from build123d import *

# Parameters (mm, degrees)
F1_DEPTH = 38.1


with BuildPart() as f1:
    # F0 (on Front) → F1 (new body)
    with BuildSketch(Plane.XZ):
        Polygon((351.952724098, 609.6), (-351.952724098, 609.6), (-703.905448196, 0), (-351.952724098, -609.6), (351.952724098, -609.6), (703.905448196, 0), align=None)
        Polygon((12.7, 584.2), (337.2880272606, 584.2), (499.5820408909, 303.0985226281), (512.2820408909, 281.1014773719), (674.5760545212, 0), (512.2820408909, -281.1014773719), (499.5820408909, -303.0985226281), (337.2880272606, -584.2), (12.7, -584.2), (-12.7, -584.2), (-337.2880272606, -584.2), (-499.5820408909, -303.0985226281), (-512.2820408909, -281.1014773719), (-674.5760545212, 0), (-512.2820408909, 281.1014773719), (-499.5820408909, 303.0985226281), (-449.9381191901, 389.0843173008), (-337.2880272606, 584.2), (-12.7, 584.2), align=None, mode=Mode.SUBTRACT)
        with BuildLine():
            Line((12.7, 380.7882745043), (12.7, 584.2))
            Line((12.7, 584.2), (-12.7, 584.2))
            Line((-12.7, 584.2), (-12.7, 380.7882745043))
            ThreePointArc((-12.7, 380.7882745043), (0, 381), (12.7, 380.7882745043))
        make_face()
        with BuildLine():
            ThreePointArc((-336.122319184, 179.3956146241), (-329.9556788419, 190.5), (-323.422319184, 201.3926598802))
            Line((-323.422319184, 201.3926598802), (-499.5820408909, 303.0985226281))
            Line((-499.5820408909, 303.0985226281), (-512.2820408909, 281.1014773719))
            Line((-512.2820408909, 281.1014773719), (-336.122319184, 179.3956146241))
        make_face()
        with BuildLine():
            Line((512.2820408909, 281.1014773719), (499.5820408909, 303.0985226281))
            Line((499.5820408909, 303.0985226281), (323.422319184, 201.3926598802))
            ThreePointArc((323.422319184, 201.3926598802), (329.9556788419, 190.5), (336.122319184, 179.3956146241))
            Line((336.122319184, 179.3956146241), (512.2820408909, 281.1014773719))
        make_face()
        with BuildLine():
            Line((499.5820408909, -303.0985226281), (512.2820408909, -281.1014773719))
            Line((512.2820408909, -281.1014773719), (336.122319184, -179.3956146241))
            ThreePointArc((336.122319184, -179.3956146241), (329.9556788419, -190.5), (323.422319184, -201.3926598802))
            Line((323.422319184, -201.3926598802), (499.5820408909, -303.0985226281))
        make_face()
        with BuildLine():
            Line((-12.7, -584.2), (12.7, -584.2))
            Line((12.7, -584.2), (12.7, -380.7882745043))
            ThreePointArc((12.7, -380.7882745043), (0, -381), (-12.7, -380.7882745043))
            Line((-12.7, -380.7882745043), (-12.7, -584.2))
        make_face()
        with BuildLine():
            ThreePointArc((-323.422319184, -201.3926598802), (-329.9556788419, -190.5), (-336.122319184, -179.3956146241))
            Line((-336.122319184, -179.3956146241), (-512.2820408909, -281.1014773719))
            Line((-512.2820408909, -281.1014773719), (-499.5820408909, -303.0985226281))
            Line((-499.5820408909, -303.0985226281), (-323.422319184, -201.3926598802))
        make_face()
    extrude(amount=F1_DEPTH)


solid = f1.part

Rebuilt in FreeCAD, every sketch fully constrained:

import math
import FreeCAD as App
import Part
import Sketcher
Q = App.Units.Quantity


def add_polygon(sketch, points):
    """Adds a closed chain of lines whose ends are joined by coincident constraints."""
    first, n = sketch.GeometryCount, len(points)
    for a, b in zip(points, points[1:] + points[:1]):
        sketch.addGeometry(Part.LineSegment(App.Vector(*a, 0), App.Vector(*b, 0)), False)
    for i in range(n):
        sketch.addConstraint(Sketcher.Constraint("Coincident", first + i, 2, first + (i + 1) % n, 1))

doc = App.newDocument("Part")
body = doc.addObject("PartDesign::Body", "Body")

# Sketch on XZ plane
sketch1 = doc.addObject("Sketcher::SketchObject", "Sketch")
body.addObject(sketch1)
sketch1.AttachmentSupport = (doc.XZ_Plane, [""])
sketch1.MapMode = "FlatFace"
add_polygon(sketch1, [(352, 610), (-352, 610), (-704, 0), (-352, -610), (352, -610), (704, 0)])  # lines 0-5
sketch1.addGeometry(Part.LineSegment(App.Vector(-337, 584, 0), App.Vector(-13, 584, 0)), False)  # 6
sketch1.addGeometry(Part.LineSegment(App.Vector(-13, 584, 0), App.Vector(-13, 381, 0)), False)  # 7
sketch1.addGeometry(Part.ArcOfCircle(Part.Circle(App.Vector(0, 0, 0), App.Vector(0, 0, 1), 381), math.radians(88.09), math.radians(91.91)), False)  # 8
sketch1.addGeometry(Part.LineSegment(App.Vector(13, 381, 0), App.Vector(13, 584, 0)), False)  # 9
sketch1.addGeometry(Part.LineSegment(App.Vector(13, 584, 0), App.Vector(337, 584, 0)), False)  # 10
sketch1.addGeometry(Part.LineSegment(App.Vector(337, 584, 0), App.Vector(500, 303, 0)), False)  # 11
sketch1.addGeometry(Part.LineSegment(App.Vector(500, 303, 0), App.Vector(323, 201, 0)), False)  # 12
sketch1.addGeometry(Part.ArcOfCircle(Part.Circle(App.Vector(0, 0, 0), App.Vector(0, 0, 1), 381), math.radians(28.09), math.radians(31.91)), False)  # 13
sketch1.addGeometry(Part.LineSegment(App.Vector(336, 179, 0), App.Vector(512, 281, 0)), False)  # 14
sketch1.addGeometry(Part.LineSegment(App.Vector(512, 281, 0), App.Vector(675, 0, 0)), False)  # 15
sketch1.addGeometry(Part.LineSegment(App.Vector(675, 0, 0), App.Vector(512, -281, 0)), False)  # 16
sketch1.addGeometry(Part.LineSegment(App.Vector(512, -281, 0), App.Vector(336, -179, 0)), False)  # 17
sketch1.addGeometry(Part.ArcOfCircle(Part.Circle(App.Vector(0, 0, 0), App.Vector(0, 0, 1), 381), math.radians(-31.91), math.radians(-28.09)), False)  # 18
sketch1.addGeometry(Part.LineSegment(App.Vector(323, -201, 0), App.Vector(500, -303, 0)), False)  # 19
sketch1.addGeometry(Part.LineSegment(App.Vector(500, -303, 0), App.Vector(337, -584, 0)), False)  # 20
sketch1.addGeometry(Part.LineSegment(App.Vector(337, -584, 0), App.Vector(13, -584, 0)), False)  # 21
sketch1.addGeometry(Part.LineSegment(App.Vector(13, -584, 0), App.Vector(13, -381, 0)), False)  # 22
sketch1.addGeometry(Part.ArcOfCircle(Part.Circle(App.Vector(0, 0, 0), App.Vector(0, 0, 1), 381), math.radians(-91.91), math.radians(-88.09)), False)  # 23
sketch1.addGeometry(Part.LineSegment(App.Vector(-13, -381, 0), App.Vector(-13, -584, 0)), False)  # 24
sketch1.addGeometry(Part.LineSegment(App.Vector(-13, -584, 0), App.Vector(-337, -584, 0)), False)  # 25
sketch1.addGeometry(Part.LineSegment(App.Vector(-337, -584, 0), App.Vector(-500, -303, 0)), False)  # 26
sketch1.addGeometry(Part.LineSegment(App.Vector(-500, -303, 0), App.Vector(-323, -201, 0)), False)  # 27
sketch1.addGeometry(Part.ArcOfCircle(Part.Circle(App.Vector(0, 0, 0), App.Vector(0, 0, 1), 381), math.radians(-151.91), math.radians(-148.09)), False)  # 28
sketch1.addGeometry(Part.LineSegment(App.Vector(-336, -179, 0), App.Vector(-512, -281, 0)), False)  # 29
sketch1.addGeometry(Part.LineSegment(App.Vector(-512, -281, 0), App.Vector(-675, 0, 0)), False)  # 30
sketch1.addGeometry(Part.LineSegment(App.Vector(-675, 0, 0), App.Vector(-512, 281, 0)), False)  # 31
sketch1.addGeometry(Part.LineSegment(App.Vector(-512, 281, 0), App.Vector(-336, 179, 0)), False)  # 32
sketch1.addGeometry(Part.ArcOfCircle(Part.Circle(App.Vector(0, 0, 0), App.Vector(0, 0, 1), 381), math.radians(148.09), math.radians(151.91)), False)  # 33
sketch1.addGeometry(Part.LineSegment(App.Vector(-323, 201, 0), App.Vector(-500, 303, 0)), False)  # 34
sketch1.addGeometry(Part.LineSegment(App.Vector(-500, 303, 0), App.Vector(-337, 584, 0)), False)  # 35
sketch1.addConstraint([
    Sketcher.Constraint("Coincident", 6, 2, 7, 1),
    Sketcher.Constraint("Coincident", 7, 2, 8, 2),
    Sketcher.Constraint("Coincident", 8, 1, 9, 1),
    Sketcher.Constraint("Coincident", 9, 2, 10, 1),
    Sketcher.Constraint("Coincident", 10, 2, 11, 1),
    Sketcher.Constraint("Coincident", 11, 2, 12, 1),
    Sketcher.Constraint("Coincident", 12, 2, 13, 2),
    Sketcher.Constraint("Coincident", 13, 1, 14, 1),
    Sketcher.Constraint("Coincident", 14, 2, 15, 1),
    Sketcher.Constraint("Coincident", 15, 2, 16, 1),
    Sketcher.Constraint("Coincident", 16, 2, 17, 1),
    Sketcher.Constraint("Coincident", 17, 2, 18, 2),
    Sketcher.Constraint("Coincident", 18, 1, 19, 1),
    Sketcher.Constraint("Coincident", 19, 2, 20, 1),
    Sketcher.Constraint("Coincident", 20, 2, 21, 1),
    Sketcher.Constraint("Coincident", 21, 2, 22, 1),
    Sketcher.Constraint("Coincident", 22, 2, 23, 2),
    Sketcher.Constraint("Coincident", 23, 1, 24, 1),
    Sketcher.Constraint("Coincident", 24, 2, 25, 1),
    Sketcher.Constraint("Coincident", 25, 2, 26, 1),
    Sketcher.Constraint("Coincident", 26, 2, 27, 1),
    Sketcher.Constraint("Coincident", 27, 2, 28, 2),
    Sketcher.Constraint("Coincident", 28, 1, 29, 1),
    Sketcher.Constraint("Coincident", 29, 2, 30, 1),
    Sketcher.Constraint("Coincident", 30, 2, 31, 1),
    Sketcher.Constraint("Coincident", 31, 2, 32, 1),
    Sketcher.Constraint("Coincident", 32, 2, 33, 2),
    Sketcher.Constraint("Coincident", 33, 1, 34, 1),
    Sketcher.Constraint("Coincident", 34, 2, 35, 1),
    Sketcher.Constraint("Coincident", 35, 2, 6, 1),
    Sketcher.Constraint("Horizontal", 0),
    Sketcher.Constraint("Horizontal", 3),
    Sketcher.Constraint("Horizontal", 6),
    Sketcher.Constraint("Vertical", 7),
    Sketcher.Constraint("Vertical", 9),
    Sketcher.Constraint("Horizontal", 10),
    Sketcher.Constraint("Horizontal", 21),
    Sketcher.Constraint("Vertical", 22),
    Sketcher.Constraint("Vertical", 24),
    Sketcher.Constraint("Horizontal", 25),
    Sketcher.Constraint("Coincident", 8, 3, -1, 1),
    Sketcher.Constraint("Coincident", 13, 3, -1, 1),
    Sketcher.Constraint("Coincident", 18, 3, -1, 1),
    Sketcher.Constraint("Coincident", 23, 3, -1, 1),
    Sketcher.Constraint("Coincident", 28, 3, -1, 1),
    Sketcher.Constraint("Coincident", 33, 3, -1, 1),
    Sketcher.Constraint("Equal", 8, 13),
    Sketcher.Constraint("Equal", 13, 18),
    Sketcher.Constraint("Equal", 18, 23),
    Sketcher.Constraint("Equal", 23, 28),
    Sketcher.Constraint("Equal", 28, 33),
    Sketcher.Constraint("Symmetric", 0, 2, 3, 2, -1, 1),
    Sketcher.Constraint("Symmetric", 1, 2, 4, 2, -1, 1),
    Sketcher.Constraint("Symmetric", 6, 2, 21, 2, -1, 1),
    Sketcher.Constraint("Symmetric", 9, 2, 24, 2, -1, 1),
    Sketcher.Constraint("Symmetric", 11, 2, 26, 2, -1, 1),
    Sketcher.Constraint("Symmetric", 14, 2, 29, 2, -1, 1),
    Sketcher.Constraint("Symmetric", 15, 2, 30, 2, -1, 1),
    Sketcher.Constraint("Symmetric", 16, 2, 31, 2, -1, 1),
    Sketcher.Constraint("Symmetric", 19, 2, 34, 2, -1, 1),
    Sketcher.Constraint("Symmetric", 6, 2, 9, 2, -2),
    Sketcher.Constraint("Symmetric", 19, 2, 26, 2, -2),
    Sketcher.Constraint("Symmetric", 16, 2, 29, 2, -2),
    Sketcher.Constraint("PointOnObject", 1, 2, -1),
    Sketcher.Constraint("PointOnObject", 15, 2, -1),
    Sketcher.Constraint("Parallel", 2, 5),
    Sketcher.Constraint("Parallel", 5, 11),
    Sketcher.Constraint("Perpendicular", 11, 12),
    Sketcher.Constraint("Parallel", 12, 14),
    Sketcher.Constraint("Perpendicular", 14, 15),
    Sketcher.Constraint("Parallel", 4, 16),
    Sketcher.Constraint("Perpendicular", 16, 17),
    Sketcher.Constraint("Parallel", 17, 19),
    Sketcher.Constraint("Perpendicular", 19, 20),
    Sketcher.Constraint("Parallel", 15, 26),
    Sketcher.Constraint("Perpendicular", 26, 27),
    Sketcher.Constraint("Parallel", 27, 29),
    Sketcher.Constraint("Perpendicular", 31, 32),
    Sketcher.Constraint("Parallel", 32, 34),
    Sketcher.Constraint("Perpendicular", 34, 35),
    Sketcher.Constraint("Equal", 12, 14),
    Sketcher.Constraint("Equal", 11, 15),
    Sketcher.Constraint("Radius", 8, Q("15 in")),
    Sketcher.Constraint("DistanceY", -1, 1, 0, 2, Q("24 in")),
    Sketcher.Constraint("DistanceY", -1, 1, 6, 2, Q("23 in")),
    Sketcher.Constraint("Angle", 1, Q("-120 deg")),
    Sketcher.Constraint("DistanceX", 6, 2, 9, 2, Q("1 in")),
    Sketcher.Constraint("DistanceX", 11, 2, 14, 2, Q("0.5 in")),
    Sketcher.Constraint("DistanceX", 0, 2, 0, 1, Q("703.905448 mm")),
    Sketcher.Constraint("DistanceX", 6, 1, 6, 2, Q("324.588027 mm")),
])
pad1 = doc.addObject("PartDesign::Pad", "Pad")
body.addObject(pad1)
pad1.Profile = sketch1
pad1.Length = Q("1.5 in")

doc.recompute()
